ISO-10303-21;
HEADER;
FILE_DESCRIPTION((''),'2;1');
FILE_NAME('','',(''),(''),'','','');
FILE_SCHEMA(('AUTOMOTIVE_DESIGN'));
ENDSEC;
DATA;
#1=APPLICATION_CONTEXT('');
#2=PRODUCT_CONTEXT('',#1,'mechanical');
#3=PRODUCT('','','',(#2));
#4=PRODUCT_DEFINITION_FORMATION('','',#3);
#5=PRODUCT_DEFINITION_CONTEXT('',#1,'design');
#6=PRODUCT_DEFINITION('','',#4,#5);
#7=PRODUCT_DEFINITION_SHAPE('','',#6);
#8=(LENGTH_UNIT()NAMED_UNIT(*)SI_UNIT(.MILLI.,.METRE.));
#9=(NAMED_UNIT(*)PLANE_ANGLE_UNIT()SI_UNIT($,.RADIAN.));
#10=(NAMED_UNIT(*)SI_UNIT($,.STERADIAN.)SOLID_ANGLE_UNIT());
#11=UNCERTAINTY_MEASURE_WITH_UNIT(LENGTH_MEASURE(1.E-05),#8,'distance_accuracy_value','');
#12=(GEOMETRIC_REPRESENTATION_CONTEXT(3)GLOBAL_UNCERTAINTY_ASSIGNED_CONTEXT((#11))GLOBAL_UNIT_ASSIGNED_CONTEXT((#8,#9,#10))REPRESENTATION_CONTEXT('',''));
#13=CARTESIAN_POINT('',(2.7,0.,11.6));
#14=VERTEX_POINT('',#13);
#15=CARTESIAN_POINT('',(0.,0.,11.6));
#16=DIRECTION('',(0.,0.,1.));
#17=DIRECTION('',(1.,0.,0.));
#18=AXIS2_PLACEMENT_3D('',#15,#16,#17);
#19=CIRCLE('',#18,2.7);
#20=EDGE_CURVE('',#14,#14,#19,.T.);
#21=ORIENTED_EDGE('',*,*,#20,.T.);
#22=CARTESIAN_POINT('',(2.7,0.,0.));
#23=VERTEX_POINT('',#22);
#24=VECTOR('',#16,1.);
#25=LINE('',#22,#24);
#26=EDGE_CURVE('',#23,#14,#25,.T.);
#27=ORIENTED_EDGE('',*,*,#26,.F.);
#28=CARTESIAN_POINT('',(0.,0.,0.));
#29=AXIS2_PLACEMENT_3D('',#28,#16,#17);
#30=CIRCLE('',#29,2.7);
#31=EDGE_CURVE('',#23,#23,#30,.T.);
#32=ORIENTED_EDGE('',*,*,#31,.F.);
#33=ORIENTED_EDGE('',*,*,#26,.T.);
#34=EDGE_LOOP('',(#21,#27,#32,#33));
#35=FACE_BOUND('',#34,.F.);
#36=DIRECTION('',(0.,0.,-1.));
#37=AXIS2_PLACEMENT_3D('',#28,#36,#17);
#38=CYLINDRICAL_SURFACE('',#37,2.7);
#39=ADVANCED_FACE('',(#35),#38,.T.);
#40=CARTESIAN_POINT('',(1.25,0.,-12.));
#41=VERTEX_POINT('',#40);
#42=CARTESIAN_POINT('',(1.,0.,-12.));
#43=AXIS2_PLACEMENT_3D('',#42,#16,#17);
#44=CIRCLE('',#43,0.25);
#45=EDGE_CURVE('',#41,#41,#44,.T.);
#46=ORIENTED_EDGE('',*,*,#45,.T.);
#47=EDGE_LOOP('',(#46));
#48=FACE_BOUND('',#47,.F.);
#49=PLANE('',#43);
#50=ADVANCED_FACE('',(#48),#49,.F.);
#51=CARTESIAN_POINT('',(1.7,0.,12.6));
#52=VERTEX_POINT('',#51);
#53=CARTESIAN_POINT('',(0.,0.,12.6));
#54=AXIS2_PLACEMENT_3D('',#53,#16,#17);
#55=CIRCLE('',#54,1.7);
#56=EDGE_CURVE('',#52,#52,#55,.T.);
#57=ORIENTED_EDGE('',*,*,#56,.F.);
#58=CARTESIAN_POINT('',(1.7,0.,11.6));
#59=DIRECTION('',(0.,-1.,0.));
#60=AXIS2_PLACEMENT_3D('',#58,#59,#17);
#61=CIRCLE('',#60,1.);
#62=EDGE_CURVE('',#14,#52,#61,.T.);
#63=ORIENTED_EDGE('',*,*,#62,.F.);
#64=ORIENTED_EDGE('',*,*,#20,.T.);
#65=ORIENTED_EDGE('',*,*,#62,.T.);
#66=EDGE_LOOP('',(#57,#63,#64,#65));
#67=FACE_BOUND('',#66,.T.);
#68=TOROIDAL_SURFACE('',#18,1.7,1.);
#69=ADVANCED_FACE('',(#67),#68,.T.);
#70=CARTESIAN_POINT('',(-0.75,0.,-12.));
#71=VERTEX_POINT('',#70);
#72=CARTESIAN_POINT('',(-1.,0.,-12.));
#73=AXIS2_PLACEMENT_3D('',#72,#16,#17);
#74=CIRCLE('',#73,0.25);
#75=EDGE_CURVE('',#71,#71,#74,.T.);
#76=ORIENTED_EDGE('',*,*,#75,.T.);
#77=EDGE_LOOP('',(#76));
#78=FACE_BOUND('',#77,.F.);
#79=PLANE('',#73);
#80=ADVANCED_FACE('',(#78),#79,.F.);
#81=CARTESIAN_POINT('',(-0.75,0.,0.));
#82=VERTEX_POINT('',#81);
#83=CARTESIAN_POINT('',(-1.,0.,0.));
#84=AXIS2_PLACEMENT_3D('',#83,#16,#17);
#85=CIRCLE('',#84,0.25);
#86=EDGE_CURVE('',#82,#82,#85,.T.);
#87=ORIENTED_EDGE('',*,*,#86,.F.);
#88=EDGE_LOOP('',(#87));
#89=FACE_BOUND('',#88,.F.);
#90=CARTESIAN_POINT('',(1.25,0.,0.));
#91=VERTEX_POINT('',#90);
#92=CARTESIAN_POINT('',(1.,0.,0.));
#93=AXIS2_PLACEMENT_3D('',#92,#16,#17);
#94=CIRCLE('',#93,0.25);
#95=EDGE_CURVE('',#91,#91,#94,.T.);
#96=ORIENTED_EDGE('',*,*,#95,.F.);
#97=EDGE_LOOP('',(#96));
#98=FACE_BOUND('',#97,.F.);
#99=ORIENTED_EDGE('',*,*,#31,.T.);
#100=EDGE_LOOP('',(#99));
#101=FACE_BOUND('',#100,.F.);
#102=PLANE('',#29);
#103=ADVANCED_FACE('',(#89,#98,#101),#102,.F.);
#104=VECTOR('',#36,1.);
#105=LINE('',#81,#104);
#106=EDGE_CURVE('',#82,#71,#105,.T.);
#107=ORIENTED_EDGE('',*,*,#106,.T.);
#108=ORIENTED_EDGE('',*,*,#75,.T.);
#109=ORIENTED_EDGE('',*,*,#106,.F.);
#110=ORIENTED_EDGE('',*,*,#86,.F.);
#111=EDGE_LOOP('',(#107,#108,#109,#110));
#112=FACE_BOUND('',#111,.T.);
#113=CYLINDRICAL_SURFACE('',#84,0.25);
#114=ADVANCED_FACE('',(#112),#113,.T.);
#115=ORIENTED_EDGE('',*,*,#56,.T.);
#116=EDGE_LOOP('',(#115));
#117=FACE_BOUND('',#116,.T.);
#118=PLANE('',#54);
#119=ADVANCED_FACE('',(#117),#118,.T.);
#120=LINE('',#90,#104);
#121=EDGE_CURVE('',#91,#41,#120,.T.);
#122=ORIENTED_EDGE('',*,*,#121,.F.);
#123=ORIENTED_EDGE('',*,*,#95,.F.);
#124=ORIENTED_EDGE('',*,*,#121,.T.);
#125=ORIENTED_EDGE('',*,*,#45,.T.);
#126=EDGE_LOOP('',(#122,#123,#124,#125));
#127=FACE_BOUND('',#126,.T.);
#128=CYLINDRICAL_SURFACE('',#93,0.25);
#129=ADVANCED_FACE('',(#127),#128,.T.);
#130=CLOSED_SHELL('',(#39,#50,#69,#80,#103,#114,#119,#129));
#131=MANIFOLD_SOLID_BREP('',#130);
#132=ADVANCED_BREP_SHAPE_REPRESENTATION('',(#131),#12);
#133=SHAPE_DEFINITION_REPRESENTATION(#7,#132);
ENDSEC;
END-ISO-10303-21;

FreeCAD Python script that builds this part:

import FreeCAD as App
import Part
import Sketcher
Q = App.Units.Quantity


def edges_at(feature, points):
    """Names of the edges that pass closest to the given points."""
    edges = feature.Shape.Edges
    near = lambda p: min(range(len(edges)), key=lambda i: edges[i].distToShape(Part.Vertex(*p))[0])
    return sorted({f"Edge{near(p) + 1}" for p in points})

doc = App.newDocument("Part")
body = doc.addObject("PartDesign::Body", "Body")

sketch1 = body.newObject("Sketcher::SketchObject", "Sketch")
sketch1.AttachmentSupport = (doc.getObject("XY_Plane"), [""])
sketch1.MapMode = "FlatFace"
sketch1.addGeometry(Part.Circle(App.Vector(0, 0, 0), App.Vector(0, 0, 1), 2.7), False)
sketch1.addConstraint([
    Sketcher.Constraint("Coincident", 0, 3, -1, 1),
    Sketcher.Constraint("Diameter", 0, Q("5.4 mm")),
])
pad1 = body.newObject("PartDesign::Pad", "Pad")
pad1.Profile = sketch1
pad1.Length = 12.6
doc.recompute()

fillet = body.newObject("PartDesign::Fillet", "Fillet")
fillet.Base = (pad1, edges_at(pad1, [(-2.7, 0, 12.6)]))
fillet.Radius = 1

sketch2 = body.newObject("Sketcher::SketchObject", "Sketch001")
sketch2.AttachmentSupport = (doc.getObject("XY_Plane"), [""])
sketch2.MapMode = "FlatFace"
sketch2.addGeometry([
    Part.Circle(App.Vector(-1, 0, 0), App.Vector(0, 0, 1), 0.25),
    Part.Circle(App.Vector(1, 0, 0), App.Vector(0, 0, 1), 0.25),
], False)
sketch2.addConstraint([
    Sketcher.Constraint("Equal", 0, 1),
    Sketcher.Constraint("Symmetric", 0, 3, 1, 3, -1, 1),
    Sketcher.Constraint("PointOnObject", 0, 3, -1),
    Sketcher.Constraint("Diameter", 0, Q("0.5 mm")),
    Sketcher.Constraint("DistanceX", 0, 3, -1, 1, Q("1 mm")),
])
pad2 = body.newObject("PartDesign::Pad", "Pad001")
pad2.Profile = sketch2
pad2.Length = 12
pad2.Reversed = True

doc.recompute()
